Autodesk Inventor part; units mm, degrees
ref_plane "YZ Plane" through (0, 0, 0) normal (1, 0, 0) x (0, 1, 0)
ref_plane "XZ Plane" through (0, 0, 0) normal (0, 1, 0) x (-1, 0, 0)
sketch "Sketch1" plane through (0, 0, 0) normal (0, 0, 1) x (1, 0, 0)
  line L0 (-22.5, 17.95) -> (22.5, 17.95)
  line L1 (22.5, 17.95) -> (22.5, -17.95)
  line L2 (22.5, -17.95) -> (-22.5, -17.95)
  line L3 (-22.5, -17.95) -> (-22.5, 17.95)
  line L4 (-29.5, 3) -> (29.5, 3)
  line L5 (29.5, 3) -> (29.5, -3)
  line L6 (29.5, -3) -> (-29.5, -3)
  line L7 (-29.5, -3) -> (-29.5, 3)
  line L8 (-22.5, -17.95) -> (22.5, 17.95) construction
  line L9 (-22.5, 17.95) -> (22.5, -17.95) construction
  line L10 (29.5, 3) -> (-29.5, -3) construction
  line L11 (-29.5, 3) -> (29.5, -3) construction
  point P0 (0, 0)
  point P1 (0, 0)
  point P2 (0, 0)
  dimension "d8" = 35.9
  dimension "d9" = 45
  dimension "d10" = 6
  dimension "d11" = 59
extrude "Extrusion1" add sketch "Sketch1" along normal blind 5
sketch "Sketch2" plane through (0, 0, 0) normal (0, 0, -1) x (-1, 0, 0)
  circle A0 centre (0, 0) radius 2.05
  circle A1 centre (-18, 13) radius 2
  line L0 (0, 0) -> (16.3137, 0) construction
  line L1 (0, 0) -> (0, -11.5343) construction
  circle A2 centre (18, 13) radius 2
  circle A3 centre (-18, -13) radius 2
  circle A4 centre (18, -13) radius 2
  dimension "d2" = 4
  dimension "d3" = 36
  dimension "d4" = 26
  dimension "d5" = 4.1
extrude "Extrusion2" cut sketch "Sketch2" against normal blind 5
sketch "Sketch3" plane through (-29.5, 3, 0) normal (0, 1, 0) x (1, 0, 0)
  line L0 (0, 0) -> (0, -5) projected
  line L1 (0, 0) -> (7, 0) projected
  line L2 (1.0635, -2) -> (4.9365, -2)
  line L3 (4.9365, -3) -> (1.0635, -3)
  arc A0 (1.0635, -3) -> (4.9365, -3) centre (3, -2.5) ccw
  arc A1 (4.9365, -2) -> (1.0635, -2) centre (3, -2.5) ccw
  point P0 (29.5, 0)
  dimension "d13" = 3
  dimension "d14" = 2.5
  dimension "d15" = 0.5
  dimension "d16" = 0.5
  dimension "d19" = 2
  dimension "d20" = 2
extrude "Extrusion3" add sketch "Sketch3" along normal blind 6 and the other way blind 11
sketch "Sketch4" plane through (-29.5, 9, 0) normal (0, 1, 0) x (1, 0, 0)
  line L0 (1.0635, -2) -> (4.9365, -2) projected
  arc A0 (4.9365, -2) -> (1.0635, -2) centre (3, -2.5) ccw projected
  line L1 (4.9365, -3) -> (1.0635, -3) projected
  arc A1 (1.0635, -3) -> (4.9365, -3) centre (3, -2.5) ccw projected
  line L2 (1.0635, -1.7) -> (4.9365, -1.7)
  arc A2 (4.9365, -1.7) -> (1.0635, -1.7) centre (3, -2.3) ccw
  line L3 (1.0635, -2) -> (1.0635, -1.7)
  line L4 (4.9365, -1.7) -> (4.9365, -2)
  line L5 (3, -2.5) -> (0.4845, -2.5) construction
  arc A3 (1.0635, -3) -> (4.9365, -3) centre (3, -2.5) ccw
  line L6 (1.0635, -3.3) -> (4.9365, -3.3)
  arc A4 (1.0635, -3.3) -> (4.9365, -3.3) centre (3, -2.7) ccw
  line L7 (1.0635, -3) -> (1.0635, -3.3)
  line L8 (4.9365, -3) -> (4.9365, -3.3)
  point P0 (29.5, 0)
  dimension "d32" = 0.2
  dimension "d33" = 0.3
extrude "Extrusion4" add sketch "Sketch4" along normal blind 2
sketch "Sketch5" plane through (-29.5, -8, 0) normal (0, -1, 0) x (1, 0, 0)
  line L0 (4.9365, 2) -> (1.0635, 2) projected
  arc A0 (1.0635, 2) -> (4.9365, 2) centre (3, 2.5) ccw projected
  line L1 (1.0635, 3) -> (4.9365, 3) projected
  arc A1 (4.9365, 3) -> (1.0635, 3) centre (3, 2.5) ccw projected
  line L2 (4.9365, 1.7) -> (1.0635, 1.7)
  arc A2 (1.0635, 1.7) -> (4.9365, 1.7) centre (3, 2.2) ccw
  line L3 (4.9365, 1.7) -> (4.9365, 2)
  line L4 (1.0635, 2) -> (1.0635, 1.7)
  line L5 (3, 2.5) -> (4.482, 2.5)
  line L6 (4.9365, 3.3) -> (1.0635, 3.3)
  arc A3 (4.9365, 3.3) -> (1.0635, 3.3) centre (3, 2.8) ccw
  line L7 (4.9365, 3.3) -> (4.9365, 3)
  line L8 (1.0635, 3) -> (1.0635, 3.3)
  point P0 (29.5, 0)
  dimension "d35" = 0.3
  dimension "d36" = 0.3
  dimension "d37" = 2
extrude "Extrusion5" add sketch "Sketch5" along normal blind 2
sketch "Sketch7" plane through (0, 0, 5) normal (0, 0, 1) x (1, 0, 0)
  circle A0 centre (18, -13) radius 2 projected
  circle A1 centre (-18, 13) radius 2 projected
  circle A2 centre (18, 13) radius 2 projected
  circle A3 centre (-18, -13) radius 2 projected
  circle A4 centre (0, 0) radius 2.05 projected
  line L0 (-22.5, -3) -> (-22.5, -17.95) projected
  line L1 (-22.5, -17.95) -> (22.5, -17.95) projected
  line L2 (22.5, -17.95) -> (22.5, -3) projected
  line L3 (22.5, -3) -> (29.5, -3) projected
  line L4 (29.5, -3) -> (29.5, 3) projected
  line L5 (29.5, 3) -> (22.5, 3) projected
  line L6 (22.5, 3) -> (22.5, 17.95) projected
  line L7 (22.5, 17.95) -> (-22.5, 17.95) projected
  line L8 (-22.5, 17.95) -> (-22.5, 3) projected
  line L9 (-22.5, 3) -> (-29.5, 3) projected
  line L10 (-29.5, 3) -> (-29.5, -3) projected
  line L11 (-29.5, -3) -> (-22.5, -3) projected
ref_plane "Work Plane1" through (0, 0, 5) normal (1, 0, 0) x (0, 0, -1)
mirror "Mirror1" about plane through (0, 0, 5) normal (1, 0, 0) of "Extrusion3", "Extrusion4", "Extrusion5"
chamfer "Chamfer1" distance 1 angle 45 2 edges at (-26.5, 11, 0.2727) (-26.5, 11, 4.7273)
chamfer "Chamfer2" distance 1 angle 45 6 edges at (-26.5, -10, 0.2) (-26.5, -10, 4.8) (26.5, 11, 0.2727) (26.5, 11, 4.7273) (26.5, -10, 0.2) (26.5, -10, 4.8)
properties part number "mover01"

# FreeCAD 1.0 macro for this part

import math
import FreeCAD as App
import Part
import Sketcher

V = App.Vector


def edges_at(feature, points):
    """Names of the edges that pass closest to the given points."""
    edges = feature.Shape.Edges
    near = lambda p: min(range(len(edges)), key=lambda i: edges[i].distToShape(Part.Vertex(*p))[0])
    return sorted({f"Edge{near(p) + 1}" for p in points})


def add_polygon(sketch, points):
    """Adds a closed chain of lines whose ends are joined by coincident constraints."""
    first, n = sketch.GeometryCount, len(points)
    for a, b in zip(points, points[1:] + points[:1]):
        sketch.addGeometry(Part.LineSegment(App.Vector(*a, 0), App.Vector(*b, 0)), False)
    for i in range(n):
        sketch.addConstraint(Sketcher.Constraint("Coincident", first + i, 2, first + (i + 1) % n, 1))

doc = App.newDocument("Part")
params = doc.addObject("Spreadsheet::Sheet", "Params")
for row, (alias, value) in enumerate([
    ("sketch1_width", "45 mm"),
    ("sketch1_height", "6 mm"),
    ("sketch1_width2", "7 mm"),
    ("pad1_length", "5 mm"),
    ("sketch2_diameter", "4 mm"),
    ("sketch2_diameter2", "4.1 mm"),
    ("pocket1_length", "5 mm"),
    ("sketch3_radius", "2 mm"),
    ("pad2_length", "6 mm"),
    ("pad2_length2", "11 mm"),
    ("sketch4_height", "0.3 mm"),
    ("pad3_length", "2 mm"),
    ("sketch5_radius", "2 mm"),
    ("sketch5_height", "0.3 mm"),
    ("pad4_length", "2 mm"),
    ("chamfer_size", "1 mm"),
    ("chamfer2_size", "1 mm"),
], start=1):
    params.set(f"A{row}", alias)
    params.set(f"B{row}", "=" + value)
    params.setAlias(f"B{row}", alias)

body = doc.addObject("PartDesign::Body", "Body")

sketch1 = body.newObject("Sketcher::SketchObject", "Sketch")
sketch1.AttachmentSupport = (doc.getObject("XY_Plane"), [""])
sketch1.MapMode = "FlatFace"
add_polygon(sketch1, [(22, 18), (-22, 18), (-22, 3), (-30, 3), (-30, -3), (-22, -3), (-22, -18), (22, -18), (22, -3), (30, -3), (30, 3), (22, 3)])
sketch1.addConstraint([
    Sketcher.Constraint("Horizontal", 0),
    Sketcher.Constraint("Vertical", 1),
    Sketcher.Constraint("Horizontal", 2),
    Sketcher.Constraint("Vertical", 3),
    Sketcher.Constraint("Horizontal", 4),
    Sketcher.Constraint("Vertical", 5),
    Sketcher.Constraint("Horizontal", 6),
    Sketcher.Constraint("Vertical", 7),
    Sketcher.Constraint("Horizontal", 8),
    Sketcher.Constraint("Vertical", 9),
    Sketcher.Constraint("Horizontal", 10),
    Sketcher.Constraint("Vertical", 11),
    Sketcher.Constraint("Symmetric", 0, 2, 6, 2, -1, 1),
    Sketcher.Constraint("Symmetric", 2, 2, 8, 2, -1, 1),
    Sketcher.Constraint("Symmetric", 4, 2, 10, 2, -1, 1),
    Sketcher.Constraint("Symmetric", 4, 2, 7, 2, -2),
    Sketcher.Constraint("DistanceX", 0, 2, 0, 1, 45.0),
    Sketcher.Constraint("DistanceY", 3, 2, 3, 1, 6.0),
    Sketcher.Constraint("DistanceY", 5, 2, 0, 2, 35.9),
    Sketcher.Constraint("DistanceX", 2, 2, 2, 1, 7.0),
])
sketch1.setExpression("Constraints[28]", "Params.sketch1_width")
sketch1.setExpression("Constraints[29]", "Params.sketch1_height")
sketch1.setExpression("Constraints[31]", "Params.sketch1_width2")
pad1 = body.newObject("PartDesign::Pad", "Pad")
pad1.Profile = sketch1
pad1.setExpression("Length", "Params.pad1_length")

sketch2 = body.newObject("Sketcher::SketchObject", "Sketch001")
sketch2.AttachmentSupport = (doc.getObject("XY_Plane"), [""])
sketch2.MapMode = "FlatFace"
sketch2.addGeometry([
    Part.Circle(V(0, 0, 0), V(0, 0, 1), 2),
    Part.Circle(V(18, 13, 0), V(0, 0, 1), 2),
    Part.Circle(V(-18, 13, 0), V(0, 0, 1), 2),
    Part.Circle(V(18, -13, 0), V(0, 0, 1), 2),
    Part.Circle(V(-18, -13, 0), V(0, 0, 1), 2),
], False)
sketch2.addConstraint([
    Sketcher.Constraint("Coincident", 0, 3, -1, 1),
    Sketcher.Constraint("Equal", 1, 2),
    Sketcher.Constraint("Equal", 2, 3),
    Sketcher.Constraint("Equal", 3, 4),
    Sketcher.Constraint("Symmetric", 2, 3, 3, 3, -1, 1),
    Sketcher.Constraint("Symmetric", 1, 3, 4, 3, -1, 1),
    Sketcher.Constraint("Symmetric", 1, 3, 2, 3, -2),
    Sketcher.Constraint("Diameter", 1, 4.0),
    Sketcher.Constraint("Diameter", 0, 4.1),
    Sketcher.Constraint("DistanceX", 2, 3, 1, 3, 36.0),
    Sketcher.Constraint("DistanceY", 3, 3, 1, 3, 26.0),
])
sketch2.setExpression("Constraints[7]", "Params.sketch2_diameter")
sketch2.setExpression("Constraints[8]", "Params.sketch2_diameter2")
pocket1 = body.newObject("PartDesign::Pocket", "Pocket")
pocket1.Profile = sketch2
pocket1.setExpression("Length", "Params.pocket1_length")
pocket1.Reversed = True

sketch3 = body.newObject("Sketcher::SketchObject", "Sketch002")
sketch3.AttachmentSupport = (doc.getObject("XZ_Plane"), [""])
sketch3.MapMode = "FlatFace"
sketch3.AttachmentOffset = App.Placement(V(0, 0, -3), App.Rotation())
sketch3.addGeometry([
    Part.ArcOfCircle(Part.Circle(V(-26.5, 2.5, 0), V(0, 0, 1), 2), math.radians(-166), math.radians(-14)),
    Part.LineSegment(V(-28.4, 2, 0), V(-24.6, 2, 0)),
    Part.ArcOfCircle(Part.Circle(V(-26.5, 2.5, 0), V(0, 0, 1), 2), math.radians(14), math.radians(166)),
    Part.LineSegment(V(-24.6, 3, 0), V(-28.4, 3, 0)),
], False)
sketch3.addConstraint([
    Sketcher.Constraint("Coincident", 0, 1, 1, 1),
    Sketcher.Constraint("Coincident", 1, 2, 0, 2),
    Sketcher.Constraint("Coincident", 2, 1, 3, 1),
    Sketcher.Constraint("Coincident", 3, 2, 2, 2),
    Sketcher.Constraint("Horizontal", 1),
    Sketcher.Constraint("Horizontal", 3),
    Sketcher.Constraint("Coincident", 2, 3, 0, 3),
    Sketcher.Constraint("Equal", 0, 2),
    Sketcher.Constraint("Vertical", 1, 2, 2, 1),
    Sketcher.Constraint("Radius", 0, 2.0),
    Sketcher.Constraint("DistanceY", -1, 1, 0, 1, 2.0),
    Sketcher.Constraint("DistanceY", -1, 1, 2, 1, 3.0),
    Sketcher.Constraint("DistanceX", 0, 3, -1, 1, 26.5),
])
sketch3.setExpression("Constraints[9]", "Params.sketch3_radius")
pad2 = body.newObject("PartDesign::Pad", "Pad001")
pad2.Profile = sketch3
pad2.Type = "TwoLengths"
pad2.setExpression("Length", "Params.pad2_length")
pad2.setExpression("Length2", "Params.pad2_length2")
pad2.Reversed = True

sketch4 = body.newObject("Sketcher::SketchObject", "Sketch003")
sketch4.AttachmentSupport = (doc.getObject("XZ_Plane"), [""])
sketch4.MapMode = "FlatFace"
sketch4.AttachmentOffset = App.Placement(V(0, 0, -9), App.Rotation())
sketch4.addGeometry([
    Part.LineSegment(V(-28.44, 2, 0), V(-24.56, 2, 0)),
    Part.LineSegment(V(-24.56, 2, 0), V(-24.56, 1.7, 0)),
    Part.ArcOfCircle(Part.Circle(V(-26.5, 2.3, 0), V(0, 0, 1), 2.03), math.radians(-163), math.radians(-17)),
    Part.LineSegment(V(-28.44, 1.7, 0), V(-28.44, 2, 0)),
    Part.LineSegment(V(-24.56, 3, 0), V(-28.44, 3, 0)),
    Part.LineSegment(V(-28.44, 3, 0), V(-28.44, 3.3, 0)),
    Part.ArcOfCircle(Part.Circle(V(-26.5, 2.7, 0), V(0, 0, 1), 2.03), math.radians(17), math.radians(163)),
    Part.LineSegment(V(-24.56, 3.3, 0), V(-24.56, 3, 0)),
], False)
sketch4.addConstraint([
    Sketcher.Constraint("Coincident", 0, 2, 1, 1),
    Sketcher.Constraint("Coincident", 1, 2, 2, 2),
    Sketcher.Constraint("Coincident", 2, 1, 3, 1),
    Sketcher.Constraint("Coincident", 3, 2, 0, 1),
    Sketcher.Constraint("Coincident", 4, 2, 5, 1),
    Sketcher.Constraint("Coincident", 5, 2, 6, 2),
    Sketcher.Constraint("Coincident", 6, 1, 7, 1),
    Sketcher.Constraint("Coincident", 7, 2, 4, 1),
    Sketcher.Constraint("Horizontal", 0),
    Sketcher.Constraint("Vertical", 1),
    Sketcher.Constraint("Vertical", 3),
    Sketcher.Constraint("Horizontal", 4),
    Sketcher.Constraint("Vertical", 5),
    Sketcher.Constraint("Vertical", 7),
    Sketcher.Constraint("Equal", 2, 6),
    Sketcher.Constraint("Horizontal", 1, 2, 2, 1),
    Sketcher.Constraint("Horizontal", 5, 2, 6, 1),
    Sketcher.Constraint("Vertical", 2, 3, 6, 3),
    Sketcher.Constraint("Vertical", 3, 2, 4, 2),
    Sketcher.Constraint("Equal", 3, 5),
    Sketcher.Constraint("DistanceY", 1, 2, 1, 1, 0.3),
    Sketcher.Constraint("DistanceY", 0, 2, 2, 3, 0.3),
    Sketcher.Constraint("DistanceY", -1, 1, 0, 2, 2.0),
    Sketcher.Constraint("DistanceY", -1, 1, 4, 2, 3.0),
    Sketcher.Constraint("DistanceX", 2, 3, -1, 1, 26.5),
    Sketcher.Constraint("Radius", 2, 2.0273),
])
sketch4.setExpression("Constraints[20]", "Params.sketch4_height")
pad3 = body.newObject("PartDesign::Pad", "Pad002")
pad3.Profile = sketch4
pad3.setExpression("Length", "Params.pad3_length")
pad3.Reversed = True

sketch5 = body.newObject("Sketcher::SketchObject", "Sketch004")
sketch5.AttachmentSupport = (doc.getObject("XZ_Plane"), [""])
sketch5.MapMode = "FlatFace"
sketch5.AttachmentOffset = App.Placement(V(0, 0, 8), App.Rotation())
sketch5.addGeometry([
    Part.LineSegment(V(-24.56, 2, 0), V(-28.44, 2, 0)),
    Part.LineSegment(V(-28.44, 2, 0), V(-28.44, 1.7, 0)),
    Part.ArcOfCircle(Part.Circle(V(-26.5, 2.2, 0), V(0, 0, 1), 2), math.radians(-166), math.radians(-14)),
    Part.LineSegment(V(-24.56, 1.7, 0), V(-24.56, 2, 0)),
    Part.LineSegment(V(-28.44, 3, 0), V(-24.56, 3, 0)),
    Part.LineSegment(V(-24.56, 3, 0), V(-24.56, 3.3, 0)),
    Part.ArcOfCircle(Part.Circle(V(-26.5, 2.8, 0), V(0, 0, 1), 2), math.radians(14), math.radians(166)),
    Part.LineSegment(V(-28.44, 3.3, 0), V(-28.44, 3, 0)),
], False)
sketch5.addConstraint([
    Sketcher.Constraint("Coincident", 0, 2, 1, 1),
    Sketcher.Constraint("Coincident", 1, 2, 2, 1),
    Sketcher.Constraint("Coincident", 2, 2, 3, 1),
    Sketcher.Constraint("Coincident", 3, 2, 0, 1),
    Sketcher.Constraint("Coincident", 4, 2, 5, 1),
    Sketcher.Constraint("Coincident", 5, 2, 6, 1),
    Sketcher.Constraint("Coincident", 6, 2, 7, 1),
    Sketcher.Constraint("Coincident", 7, 2, 4, 1),
    Sketcher.Constraint("Horizontal", 0),
    Sketcher.Constraint("Vertical", 1),
    Sketcher.Constraint("Vertical", 3),
    Sketcher.Constraint("Horizontal", 4),
    Sketcher.Constraint("Vertical", 5),
    Sketcher.Constraint("Vertical", 7),
    Sketcher.Constraint("Equal", 2, 6),
    Sketcher.Constraint("Horizontal", 1, 2, 2, 2),
    Sketcher.Constraint("Horizontal", 5, 2, 6, 2),
    Sketcher.Constraint("Vertical", 2, 3, 6, 3),
    Sketcher.Constraint("Vertical", 3, 2, 4, 2),
    Sketcher.Constraint("Equal", 3, 5),
    Sketcher.Constraint("Radius", 2, 2.0),
    Sketcher.Constraint("DistanceY", 1, 2, 1, 1, 0.3),
    Sketcher.Constraint("DistanceY", -1, 1, 0, 2, 2.0),
    Sketcher.Constraint("DistanceY", -1, 1, 4, 2, 3.0),
    Sketcher.Constraint("DistanceX", 2, 3, -1, 1, 26.5),
    Sketcher.Constraint("DistanceY", -1, 1, 2, 3, 2.2),
])
sketch5.setExpression("Constraints[20]", "Params.sketch5_radius")
sketch5.setExpression("Constraints[21]", "Params.sketch5_height")
pad4 = body.newObject("PartDesign::Pad", "Pad003")
pad4.Profile = sketch5
pad4.setExpression("Length", "Params.pad4_length")
doc.recompute()

mirrored = body.newObject("PartDesign::Mirrored", "Mirrored")
mirrored.Originals = [pad2, pad3, pad4]
mirrored.MirrorPlane = (doc.getObject("YZ_Plane"), [""])
body.Tip = mirrored
doc.recompute()

chamfer = body.newObject("PartDesign::Chamfer", "Chamfer")
chamfer.Base = (mirrored, edges_at(mirrored, [(-26.5, 11, 0.273), (-26.5, 11, 4.727)]))
chamfer.setExpression("Size", "Params.chamfer_size")
doc.recompute()

chamfer2 = body.newObject("PartDesign::Chamfer", "Chamfer001")
chamfer2.Base = (chamfer, edges_at(chamfer, [
    (-26.5, -10, 0.2),
    (-26.5, -10, 4.8),
    (26.5, 11, 0.273),
    (26.5, 11, 4.727),
    (26.5, -10, 0.2),
    (26.5, -10, 4.8),
]))
chamfer2.setExpression("Size", "Params.chamfer2_size")

doc.recompute()
